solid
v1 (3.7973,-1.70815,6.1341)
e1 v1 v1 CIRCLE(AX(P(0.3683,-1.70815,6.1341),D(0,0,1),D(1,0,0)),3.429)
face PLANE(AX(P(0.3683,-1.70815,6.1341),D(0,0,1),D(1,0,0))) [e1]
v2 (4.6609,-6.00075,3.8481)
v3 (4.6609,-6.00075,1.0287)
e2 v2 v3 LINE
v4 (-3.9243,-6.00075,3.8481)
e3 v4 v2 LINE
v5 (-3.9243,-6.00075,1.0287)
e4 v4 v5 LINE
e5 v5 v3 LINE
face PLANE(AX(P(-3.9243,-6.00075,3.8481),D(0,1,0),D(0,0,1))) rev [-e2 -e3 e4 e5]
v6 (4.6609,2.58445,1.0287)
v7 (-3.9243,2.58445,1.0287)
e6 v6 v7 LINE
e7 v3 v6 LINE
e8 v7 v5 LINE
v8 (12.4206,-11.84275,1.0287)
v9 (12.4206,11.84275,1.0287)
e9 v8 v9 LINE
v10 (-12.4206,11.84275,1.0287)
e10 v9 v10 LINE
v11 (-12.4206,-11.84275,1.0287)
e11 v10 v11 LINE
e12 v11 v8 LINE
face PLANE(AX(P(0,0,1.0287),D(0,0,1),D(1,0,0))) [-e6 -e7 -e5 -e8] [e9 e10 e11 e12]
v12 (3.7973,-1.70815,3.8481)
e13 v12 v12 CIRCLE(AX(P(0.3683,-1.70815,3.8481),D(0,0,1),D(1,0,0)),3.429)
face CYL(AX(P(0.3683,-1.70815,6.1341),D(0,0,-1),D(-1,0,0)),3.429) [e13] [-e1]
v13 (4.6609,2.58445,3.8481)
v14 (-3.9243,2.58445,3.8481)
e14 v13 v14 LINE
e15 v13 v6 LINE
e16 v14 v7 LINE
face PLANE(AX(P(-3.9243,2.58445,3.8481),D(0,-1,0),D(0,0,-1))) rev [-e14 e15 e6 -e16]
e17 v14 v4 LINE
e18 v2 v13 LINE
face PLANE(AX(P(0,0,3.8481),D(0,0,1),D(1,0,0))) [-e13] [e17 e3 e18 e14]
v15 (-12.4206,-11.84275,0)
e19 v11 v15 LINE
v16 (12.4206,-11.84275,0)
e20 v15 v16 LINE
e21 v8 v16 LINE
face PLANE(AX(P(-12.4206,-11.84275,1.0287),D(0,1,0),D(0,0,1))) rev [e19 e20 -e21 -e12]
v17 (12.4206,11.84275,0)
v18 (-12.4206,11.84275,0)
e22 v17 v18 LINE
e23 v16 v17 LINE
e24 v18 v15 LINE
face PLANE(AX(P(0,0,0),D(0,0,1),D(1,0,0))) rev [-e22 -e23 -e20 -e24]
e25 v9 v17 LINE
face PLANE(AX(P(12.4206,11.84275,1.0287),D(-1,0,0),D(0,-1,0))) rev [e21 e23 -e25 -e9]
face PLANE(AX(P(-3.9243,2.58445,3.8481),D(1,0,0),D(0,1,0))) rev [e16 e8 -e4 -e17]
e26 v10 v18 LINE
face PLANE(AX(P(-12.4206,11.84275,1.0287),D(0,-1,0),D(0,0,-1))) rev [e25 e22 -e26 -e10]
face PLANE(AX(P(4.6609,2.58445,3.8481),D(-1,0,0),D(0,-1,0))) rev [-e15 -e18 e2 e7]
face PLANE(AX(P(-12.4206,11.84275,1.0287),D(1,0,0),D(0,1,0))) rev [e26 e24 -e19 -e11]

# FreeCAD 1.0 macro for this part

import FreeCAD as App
import Part
import Sketcher

V = App.Vector
Q = App.Units.Quantity


def add_polygon(sketch, points):
    """Adds a closed chain of lines whose ends are joined by coincident constraints."""
    first, n = sketch.GeometryCount, len(points)
    for a, b in zip(points, points[1:] + points[:1]):
        sketch.addGeometry(Part.LineSegment(App.Vector(*a, 0), App.Vector(*b, 0)), False)
    for i in range(n):
        sketch.addConstraint(Sketcher.Constraint("Coincident", first + i, 2, first + (i + 1) % n, 1))

doc = App.newDocument("Part")
body = doc.addObject("PartDesign::Body", "Body")

# Sketch on XY plane
sketch1 = body.newObject("Sketcher::SketchObject", "Sketch")
sketch1.AttachmentSupport = (doc.getObject("XY_Plane"), [""])
sketch1.MapMode = "FlatFace"
add_polygon(sketch1, [(-12, 12), (-12, -12), (12, -12), (12, 12)])  # lines 0-3
sketch1.addConstraint([
    Sketcher.Constraint("Vertical", 0),
    Sketcher.Constraint("Horizontal", 1),
    Sketcher.Constraint("Vertical", 2),
    Sketcher.Constraint("Horizontal", 3),
    Sketcher.Constraint("Symmetric", 0, 2, 2, 2, -1, 1),
    Sketcher.Constraint("DistanceX", 1, 1, 1, 2, Q("0.978 in")),
    Sketcher.Constraint("DistanceY", 0, 2, 0, 1, Q("0.9325 in")),
])
pad1 = body.newObject("PartDesign::Pad", "Pad")
pad1.Profile = sketch1
pad1.Length = Q("0.0405 in")

# Sketch on XY plane
sketch2 = body.newObject("Sketcher::SketchObject", "Sketch001")
sketch2.AttachmentSupport = (doc.getObject("XY_Plane"), [""])
sketch2.MapMode = "FlatFace"
sketch2.AttachmentOffset = App.Placement(V(0, 0, 0.0405 * 25.4), App.Rotation())
add_polygon(sketch2, [(-4, 3), (-4, -6), (5, -6), (5, 3)])  # lines 0-3
sketch2.addConstraint([
    Sketcher.Constraint("Vertical", 0),
    Sketcher.Constraint("Horizontal", 1),
    Sketcher.Constraint("Vertical", 2),
    Sketcher.Constraint("Horizontal", 3),
    Sketcher.Constraint("Equal", 3, 0),
    Sketcher.Constraint("DistanceX", 1, 1, 1, 2, Q("0.338 in")),
    Sketcher.Constraint("DistanceX", 0, 2, -1, 1, Q("0.1545 in")),
    Sketcher.Constraint("DistanceY", 0, 2, -1, 1, Q("6.00075 mm")),
])
pad2 = body.newObject("PartDesign::Pad", "Pad001")
pad2.Profile = sketch2
pad2.Length = Q("0.111 in")

# Sketch on XY plane
sketch3 = body.newObject("Sketcher::SketchObject", "Sketch002")
sketch3.AttachmentSupport = (doc.getObject("XY_Plane"), [""])
sketch3.MapMode = "FlatFace"
sketch3.AttachmentOffset = App.Placement(V(0, 0, 0.1515 * 25.4), App.Rotation())
sketch3.addGeometry(Part.Circle(V(0.4, -1.7, 0), V(0, 0, 1), 3.4), False)
sketch3.addConstraint([
    Sketcher.Constraint("Diameter", 0, Q("0.27 in")),
    Sketcher.Constraint("DistanceX", -1, 1, 0, 3, Q("0.0145 in")),
    Sketcher.Constraint("DistanceY", 0, 3, -1, 1, Q("1.70815 mm")),
])
pad3 = body.newObject("PartDesign::Pad", "Pad002")
pad3.Profile = sketch3
pad3.Length = Q("0.09 in")

doc.recompute()
